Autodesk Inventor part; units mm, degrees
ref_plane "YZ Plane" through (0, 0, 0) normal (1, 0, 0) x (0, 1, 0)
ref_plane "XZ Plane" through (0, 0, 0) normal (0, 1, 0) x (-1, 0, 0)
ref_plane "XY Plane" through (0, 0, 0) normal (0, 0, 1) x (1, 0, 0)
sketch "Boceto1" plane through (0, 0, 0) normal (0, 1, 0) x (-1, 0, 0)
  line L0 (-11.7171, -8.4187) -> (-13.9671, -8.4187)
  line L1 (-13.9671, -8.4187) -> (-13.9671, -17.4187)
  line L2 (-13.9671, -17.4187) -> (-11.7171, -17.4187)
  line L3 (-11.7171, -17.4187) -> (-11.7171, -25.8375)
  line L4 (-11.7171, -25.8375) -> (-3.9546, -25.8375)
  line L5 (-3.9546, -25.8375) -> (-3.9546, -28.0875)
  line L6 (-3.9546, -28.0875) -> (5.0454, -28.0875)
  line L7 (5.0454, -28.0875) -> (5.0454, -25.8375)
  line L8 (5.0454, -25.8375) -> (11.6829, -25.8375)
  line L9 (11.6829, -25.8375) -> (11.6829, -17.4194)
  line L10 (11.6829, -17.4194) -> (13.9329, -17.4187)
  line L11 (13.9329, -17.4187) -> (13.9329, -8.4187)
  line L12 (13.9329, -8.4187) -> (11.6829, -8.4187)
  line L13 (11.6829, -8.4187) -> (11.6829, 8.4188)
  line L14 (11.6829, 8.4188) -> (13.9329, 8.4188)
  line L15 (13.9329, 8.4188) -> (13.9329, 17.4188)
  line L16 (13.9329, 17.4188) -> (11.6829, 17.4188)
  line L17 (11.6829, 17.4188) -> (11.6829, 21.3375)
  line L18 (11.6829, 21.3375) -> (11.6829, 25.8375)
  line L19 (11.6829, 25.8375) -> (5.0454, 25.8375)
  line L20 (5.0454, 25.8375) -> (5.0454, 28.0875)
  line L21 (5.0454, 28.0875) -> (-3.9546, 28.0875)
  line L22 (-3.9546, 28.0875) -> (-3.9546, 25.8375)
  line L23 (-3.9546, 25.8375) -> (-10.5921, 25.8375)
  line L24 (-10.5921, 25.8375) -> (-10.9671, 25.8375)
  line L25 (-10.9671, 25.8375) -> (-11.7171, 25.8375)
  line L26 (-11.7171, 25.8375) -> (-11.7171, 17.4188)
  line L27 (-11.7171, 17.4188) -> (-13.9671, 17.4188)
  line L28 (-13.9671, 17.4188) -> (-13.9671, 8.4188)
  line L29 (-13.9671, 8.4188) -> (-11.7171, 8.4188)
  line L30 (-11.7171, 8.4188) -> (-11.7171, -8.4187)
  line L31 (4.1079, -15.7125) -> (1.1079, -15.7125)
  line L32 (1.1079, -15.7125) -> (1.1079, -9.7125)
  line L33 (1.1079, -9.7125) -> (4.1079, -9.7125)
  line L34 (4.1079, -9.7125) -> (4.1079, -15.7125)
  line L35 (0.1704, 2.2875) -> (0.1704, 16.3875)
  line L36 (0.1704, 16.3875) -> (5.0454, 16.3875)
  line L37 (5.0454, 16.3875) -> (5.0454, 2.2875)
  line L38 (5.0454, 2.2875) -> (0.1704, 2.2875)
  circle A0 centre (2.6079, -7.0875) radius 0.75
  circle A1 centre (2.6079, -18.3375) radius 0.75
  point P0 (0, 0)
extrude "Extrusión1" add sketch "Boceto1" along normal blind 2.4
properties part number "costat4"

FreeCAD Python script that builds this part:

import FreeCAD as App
import Part
import Sketcher
Q = App.Units.Quantity


def add_polygon(sketch, points):
    """Adds a closed chain of lines whose ends are joined by coincident constraints."""
    first, n = sketch.GeometryCount, len(points)
    for a, b in zip(points, points[1:] + points[:1]):
        sketch.addGeometry(Part.LineSegment(App.Vector(*a, 0), App.Vector(*b, 0)), False)
    for i in range(n):
        sketch.addConstraint(Sketcher.Constraint("Coincident", first + i, 2, first + (i + 1) % n, 1))

doc = App.newDocument("Part")
body = doc.addObject("PartDesign::Body", "Body")

sketch1 = body.newObject("Sketcher::SketchObject", "Sketch")
sketch1.AttachmentSupport = (doc.getObject("XZ_Plane"), [""])
sketch1.MapMode = "FlatFace"
add_polygon(sketch1, [(11.7, 8.4), (11.7, -8.4), (14, -8.4), (14, -17.4), (11.7, -17.4), (11.7, -25.8), (4, -25.8), (4, -28.1), (-5, -28.1), (-5, -25.8), (-11.7, -25.8), (-11.7, -17.4), (-13.9, -17.4), (-13.9, -8.4), (-11.7, -8.4), (-11.7, 8.4), (-13.9, 8.4), (-13.9, 17.4), (-11.7, 17.4), (-11.7, 25.8), (-5, 25.8), (-5, 28.1), (4, 28.1), (4, 25.8), (11.7, 25.8), (11.7, 17.4), (14, 17.4), (14, 8.4)])
sketch1.addGeometry(Part.Circle(App.Vector(-2.6, -18.3, 0), App.Vector(0, 0, 1), 0.8), False)
add_polygon(sketch1, [(-4.1, -9.7), (-4.1, -15.7), (-1.1, -15.7), (-1.1, -9.7)])
sketch1.addGeometry(Part.Circle(App.Vector(-2.6, -7.1, 0), App.Vector(0, 0, 1), 0.8), False)
add_polygon(sketch1, [(-5, 2.3), (-0.2, 2.3), (-0.2, 16.4), (-5, 16.4)])
sketch1.addConstraint([
    Sketcher.Constraint("Vertical", 0),
    Sketcher.Constraint("Horizontal", 1),
    Sketcher.Constraint("Vertical", 2),
    Sketcher.Constraint("Horizontal", 3),
    Sketcher.Constraint("Vertical", 4),
    Sketcher.Constraint("Horizontal", 5),
    Sketcher.Constraint("Vertical", 6),
    Sketcher.Constraint("Horizontal", 7),
    Sketcher.Constraint("Vertical", 8),
    Sketcher.Constraint("Horizontal", 9),
    Sketcher.Constraint("Vertical", 10),
    Sketcher.Constraint("Vertical", 12),
    Sketcher.Constraint("Horizontal", 13),
    Sketcher.Constraint("Vertical", 14),
    Sketcher.Constraint("Horizontal", 15),
    Sketcher.Constraint("Vertical", 16),
    Sketcher.Constraint("Horizontal", 17),
    Sketcher.Constraint("Vertical", 18),
    Sketcher.Constraint("Horizontal", 19),
    Sketcher.Constraint("Vertical", 20),
    Sketcher.Constraint("Horizontal", 21),
    Sketcher.Constraint("Vertical", 22),
    Sketcher.Constraint("Horizontal", 23),
    Sketcher.Constraint("Vertical", 24),
    Sketcher.Constraint("Horizontal", 25),
    Sketcher.Constraint("Vertical", 26),
    Sketcher.Constraint("Horizontal", 27),
    Sketcher.Constraint("Vertical", 29),
    Sketcher.Constraint("Horizontal", 30),
    Sketcher.Constraint("Vertical", 31),
    Sketcher.Constraint("Horizontal", 32),
    Sketcher.Constraint("Horizontal", 34),
    Sketcher.Constraint("Vertical", 35),
    Sketcher.Constraint("Horizontal", 36),
    Sketcher.Constraint("Vertical", 37),
    Sketcher.Constraint("Equal", 28, 33),
    Sketcher.Constraint("Symmetric", 12, 2, 15, 2, -1),
    Sketcher.Constraint("Symmetric", 9, 2, 18, 2, -1),
    Sketcher.Constraint("Symmetric", 7, 2, 20, 2, -1),
    Sketcher.Constraint("Symmetric", 5, 2, 22, 2, -1),
    Sketcher.Constraint("Symmetric", 3, 2, 24, 2, -1),
    Sketcher.Constraint("Symmetric", 1, 2, 26, 2, -1),
    Sketcher.Constraint("Horizontal", 5, 2, 8, 2),
    Sketcher.Constraint("Horizontal", 3, 2, 11, 2),
    Sketcher.Constraint("Horizontal", 1, 2, 12, 2),
    Sketcher.Constraint("Horizontal", 17, 2, 24, 2),
    Sketcher.Constraint("Vertical", 28, 3, 33, 3),
    Sketcher.Constraint("Vertical", 0, 2, 3, 2),
    Sketcher.Constraint("Vertical", 10, 2, 13, 2),
    Sketcher.Constraint("Vertical", 20, 2, 36, 2),
    Sketcher.Constraint("Equal", 3, 13),
    Sketcher.Constraint("Equal", 21, 2),
    Sketcher.Constraint("Equal", 27, 6),
    Sketcher.Constraint("Diameter", 28, Q("1.5 mm")),
    Sketcher.Constraint("DistanceX", 7, 2, 7, 1, Q("9 mm")),
    Sketcher.Constraint("DistanceX", 30, 1, 30, 2, Q("3 mm")),
    Sketcher.Constraint("DistanceY", 29, 2, 29, 1, Q("6 mm")),
    Sketcher.Constraint("DistanceY", 35, 1, 35, 2, Q("14.1 mm")),
    Sketcher.Constraint("DistanceY", 31, 2, 34, 2, Q("12 mm")),
    Sketcher.Constraint("DistanceX", 1, 1, 1, 2, Q("2.25 mm")),
    Sketcher.Constraint("DistanceY", 4, 2, 28, 3, Q("7.5 mm")),
    Sketcher.Constraint("DistanceX", 18, 2, 23, 2, Q("23.4 mm")),
    Sketcher.Constraint("DistanceX", 29, 2, 28, 3, Q("1.5 mm")),
    Sketcher.Constraint("DistanceY", 35, 2, 21, 2, Q("11.7 mm")),
    Sketcher.Constraint("DistanceX", 34, 1, 34, 2, Q("4.875 mm")),
    Sketcher.Constraint("DistanceY", 10, 1, 10, 2, Q("8.418 mm")),
    Sketcher.Constraint("DistanceY", 28, 3, 33, 3, Q("11.25 mm")),
    Sketcher.Constraint("DistanceX", 5, 2, 5, 1, Q("7.7625 mm")),
    Sketcher.Constraint("DistanceY", 0, 2, 0, 1, Q("16.8375 mm")),
    Sketcher.Constraint("DistanceY", 4, 2, 4, 1, Q("8.4188 mm")),
    Sketcher.Constraint("DistanceX", 28, 3, -1, 1, Q("2.608 mm")),
    Sketcher.Constraint("DistanceX", -1, 1, 0, 2, Q("11.717 mm")),
])
pad1 = body.newObject("PartDesign::Pad", "Pad")
pad1.Profile = sketch1
pad1.Length = 2.4
pad1.Reversed = True

doc.recompute()
